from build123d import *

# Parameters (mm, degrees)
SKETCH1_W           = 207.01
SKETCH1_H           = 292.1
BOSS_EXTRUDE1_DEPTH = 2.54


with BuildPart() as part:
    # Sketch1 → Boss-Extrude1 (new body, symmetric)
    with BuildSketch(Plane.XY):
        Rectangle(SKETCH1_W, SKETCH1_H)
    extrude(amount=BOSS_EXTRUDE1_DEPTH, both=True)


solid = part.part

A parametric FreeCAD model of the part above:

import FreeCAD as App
import Part
import Sketcher
Q = App.Units.Quantity

doc = App.newDocument("Part")
body = doc.addObject("PartDesign::Body", "Body")

# Sketch on XY plane
sketch1 = body.newObject("Sketcher::SketchObject", "Sketch")
sketch1.AttachmentSupport = (doc.getObject("XY_Plane"), [""])
sketch1.MapMode = "FlatFace"
sketch1.addGeometry([
    Part.LineSegment(App.Vector(-104, 146, 0), App.Vector(-104, -146, 0)),
    Part.LineSegment(App.Vector(-104, -146, 0), App.Vector(104, -146, 0)),
    Part.LineSegment(App.Vector(104, -146, 0), App.Vector(104, 146, 0)),
    Part.LineSegment(App.Vector(104, 146, 0), App.Vector(-104, 146, 0)),
], False)
sketch1.addConstraint([
    Sketcher.Constraint("Coincident", 0, 2, 1, 1),
    Sketcher.Constraint("Coincident", 1, 2, 2, 1),
    Sketcher.Constraint("Coincident", 2, 2, 3, 1),
    Sketcher.Constraint("Coincident", 3, 2, 0, 1),
    Sketcher.Constraint("Vertical", 0),
    Sketcher.Constraint("Horizontal", 1),
    Sketcher.Constraint("Vertical", 2),
    Sketcher.Constraint("Horizontal", 3),
    Sketcher.Constraint("Symmetric", 0, 2, 2, 2, -1, 1),
    Sketcher.Constraint("DistanceY", 0, 2, 0, 1, Q("11.5 in")),
    Sketcher.Constraint("DistanceX", 1, 1, 1, 2, Q("8.15 in")),
])
pad1 = body.newObject("PartDesign::Pad", "Pad")
pad1.Profile = sketch1
pad1.Length = Q("0.2 in")
pad1.Midplane = True

doc.recompute()
